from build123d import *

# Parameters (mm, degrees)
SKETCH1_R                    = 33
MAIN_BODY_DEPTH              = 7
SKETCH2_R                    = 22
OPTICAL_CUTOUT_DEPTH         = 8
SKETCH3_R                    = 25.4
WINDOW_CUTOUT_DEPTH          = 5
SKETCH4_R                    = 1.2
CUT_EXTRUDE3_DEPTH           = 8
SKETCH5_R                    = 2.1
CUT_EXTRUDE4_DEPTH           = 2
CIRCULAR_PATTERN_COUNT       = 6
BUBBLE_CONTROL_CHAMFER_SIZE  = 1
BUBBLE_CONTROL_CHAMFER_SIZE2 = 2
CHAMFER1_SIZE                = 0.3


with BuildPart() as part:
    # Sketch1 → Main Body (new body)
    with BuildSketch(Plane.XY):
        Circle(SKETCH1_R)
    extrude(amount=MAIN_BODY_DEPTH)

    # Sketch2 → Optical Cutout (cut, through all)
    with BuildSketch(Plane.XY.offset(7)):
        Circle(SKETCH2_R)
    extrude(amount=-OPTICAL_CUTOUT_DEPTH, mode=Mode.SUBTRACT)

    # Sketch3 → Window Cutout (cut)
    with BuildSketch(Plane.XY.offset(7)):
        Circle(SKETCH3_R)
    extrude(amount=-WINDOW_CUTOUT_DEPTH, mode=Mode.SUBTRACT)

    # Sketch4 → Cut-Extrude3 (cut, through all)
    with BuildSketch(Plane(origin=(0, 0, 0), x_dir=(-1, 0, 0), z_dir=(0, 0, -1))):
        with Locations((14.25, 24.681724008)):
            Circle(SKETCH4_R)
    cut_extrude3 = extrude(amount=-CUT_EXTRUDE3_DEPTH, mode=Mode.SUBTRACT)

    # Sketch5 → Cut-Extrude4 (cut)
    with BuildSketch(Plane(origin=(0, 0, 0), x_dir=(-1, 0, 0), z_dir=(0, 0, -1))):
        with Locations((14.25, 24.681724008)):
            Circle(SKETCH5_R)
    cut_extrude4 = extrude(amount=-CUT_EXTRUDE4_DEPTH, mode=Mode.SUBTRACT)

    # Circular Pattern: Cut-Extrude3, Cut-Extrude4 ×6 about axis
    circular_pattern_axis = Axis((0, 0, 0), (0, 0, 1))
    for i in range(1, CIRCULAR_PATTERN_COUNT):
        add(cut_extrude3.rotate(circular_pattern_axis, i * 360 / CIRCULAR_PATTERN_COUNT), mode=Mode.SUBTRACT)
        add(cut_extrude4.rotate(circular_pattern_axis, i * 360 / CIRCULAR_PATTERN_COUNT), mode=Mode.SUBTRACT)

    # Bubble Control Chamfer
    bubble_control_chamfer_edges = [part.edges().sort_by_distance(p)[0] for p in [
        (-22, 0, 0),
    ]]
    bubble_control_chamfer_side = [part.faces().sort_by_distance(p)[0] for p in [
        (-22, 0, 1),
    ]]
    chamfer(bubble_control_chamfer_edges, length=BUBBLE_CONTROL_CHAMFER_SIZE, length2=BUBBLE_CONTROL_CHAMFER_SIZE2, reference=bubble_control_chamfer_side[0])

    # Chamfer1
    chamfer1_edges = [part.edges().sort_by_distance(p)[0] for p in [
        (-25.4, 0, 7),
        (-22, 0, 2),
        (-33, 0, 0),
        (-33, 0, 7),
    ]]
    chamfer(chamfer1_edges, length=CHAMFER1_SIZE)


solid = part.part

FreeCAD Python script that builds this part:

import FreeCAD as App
import Part
import Sketcher


def edges_at(feature, points):
    """Names of the edges that pass closest to the given points."""
    edges = feature.Shape.Edges
    near = lambda p: min(range(len(edges)), key=lambda i: edges[i].distToShape(Part.Vertex(*p))[0])
    return sorted({f"Edge{near(p) + 1}" for p in points})

doc = App.newDocument("Part")
params = doc.addObject("Spreadsheet::Sheet", "Params")
for row, (alias, value) in enumerate([
    ("sketch1_diameter", "66 mm"),
    ("pad1_length", "7 mm"),
    ("sketch2_diameter", "44 mm"),
    ("sketch3_diameter", "50.8 mm"),
    ("pocket2_length", "5 mm"),
    ("sketch4_diameter", "2.4 mm"),
    ("sketch5_diameter", "4.2 mm"),
    ("pocket4_length", "2 mm"),
    ("chamfer_size", "1 mm"),
    ("chamfer_size2", "2 mm"),
    ("chamfer2_size", "0.3 mm"),
], start=1):
    params.set(f"A{row}", alias)
    params.set(f"B{row}", "=" + value)
    params.setAlias(f"B{row}", alias)

body = doc.addObject("PartDesign::Body", "Body")

# Sketch on XY plane
sketch1 = doc.addObject("Sketcher::SketchObject", "Sketch")
body.addObject(sketch1)
sketch1.AttachmentSupport = (doc.XY_Plane, [""])
sketch1.MapMode = "FlatFace"
sketch1.addGeometry(Part.Circle(App.Vector(0, 0, 0), App.Vector(0, 0, 1), 33), False)
sketch1.addConstraint(Sketcher.Constraint("Coincident", 0, 3, -1, 1))
sketch1.addConstraint(Sketcher.Constraint("Diameter", 0, 66.0))
sketch1.setExpression("Constraints[1]", "Params.sketch1_diameter")
pad1 = doc.addObject("PartDesign::Pad", "Pad")
body.addObject(pad1)
pad1.Profile = sketch1
pad1.setExpression("Length", "Params.pad1_length")

# Sketch on XY plane
sketch2 = doc.addObject("Sketcher::SketchObject", "Sketch001")
body.addObject(sketch2)
sketch2.AttachmentSupport = (doc.XY_Plane, [""])
sketch2.MapMode = "FlatFace"
sketch2.AttachmentOffset = App.Placement(App.Vector(0, 0, 7), App.Rotation())
sketch2.addGeometry(Part.Circle(App.Vector(0, 0, 0), App.Vector(0, 0, 1), 22), False)
sketch2.addConstraint(Sketcher.Constraint("Coincident", 0, 3, -1, 1))
sketch2.addConstraint(Sketcher.Constraint("Diameter", 0, 44.0))
sketch2.setExpression("Constraints[1]", "Params.sketch2_diameter")
pocket1 = doc.addObject("PartDesign::Pocket", "Pocket")
body.addObject(pocket1)
pocket1.Profile = sketch2
pocket1.Type = "ThroughAll"

# Sketch on XY plane
sketch3 = doc.addObject("Sketcher::SketchObject", "Sketch002")
body.addObject(sketch3)
sketch3.AttachmentSupport = (doc.XY_Plane, [""])
sketch3.MapMode = "FlatFace"
sketch3.AttachmentOffset = App.Placement(App.Vector(0, 0, 7), App.Rotation())
sketch3.addGeometry(Part.Circle(App.Vector(0, 0, 0), App.Vector(0, 0, 1), 25), False)
sketch3.addConstraint(Sketcher.Constraint("Coincident", 0, 3, -1, 1))
sketch3.addConstraint(Sketcher.Constraint("Diameter", 0, 50.8))
sketch3.setExpression("Constraints[1]", "Params.sketch3_diameter")
pocket2 = doc.addObject("PartDesign::Pocket", "Pocket001")
body.addObject(pocket2)
pocket2.Profile = sketch3
pocket2.setExpression("Length", "Params.pocket2_length")

# Sketch on XY plane
sketch4 = doc.addObject("Sketcher::SketchObject", "Sketch003")
body.addObject(sketch4)
sketch4.AttachmentSupport = (doc.XY_Plane, [""])
sketch4.MapMode = "FlatFace"
sketch4.addGeometry(Part.Circle(App.Vector(-14.2, 24.7, 0), App.Vector(0, 0, 1), 1.2), False)
sketch4.addConstraint(Sketcher.Constraint("Diameter", 0, 2.4))
sketch4.addConstraint(Sketcher.Constraint("DistanceX", 0, 3, -1, 1, 14.25))
sketch4.addConstraint(Sketcher.Constraint("DistanceY", -1, 1, 0, 3, 24.681724))
sketch4.setExpression("Constraints[0]", "Params.sketch4_diameter")
pocket3 = doc.addObject("PartDesign::Pocket", "Pocket002")
body.addObject(pocket3)
pocket3.Profile = sketch4
pocket3.Type = "ThroughAll"
pocket3.Reversed = True

# Sketch on XY plane
sketch5 = doc.addObject("Sketcher::SketchObject", "Sketch004")
body.addObject(sketch5)
sketch5.AttachmentSupport = (doc.XY_Plane, [""])
sketch5.MapMode = "FlatFace"
sketch5.addGeometry(Part.Circle(App.Vector(-14.2, 24.7, 0), App.Vector(0, 0, 1), 2.1), False)
sketch5.addConstraint(Sketcher.Constraint("Diameter", 0, 4.2))
sketch5.addConstraint(Sketcher.Constraint("DistanceX", 0, 3, -1, 1, 14.25))
sketch5.addConstraint(Sketcher.Constraint("DistanceY", -1, 1, 0, 3, 24.681724))
sketch5.setExpression("Constraints[0]", "Params.sketch5_diameter")
pocket4 = doc.addObject("PartDesign::Pocket", "Pocket003")
body.addObject(pocket4)
pocket4.Profile = sketch5
pocket4.setExpression("Length", "Params.pocket4_length")
pocket4.Reversed = True
doc.recompute()

polarpattern = doc.addObject("PartDesign::PolarPattern", "PolarPattern")
body.addObject(polarpattern)
polarpattern.Originals = [pocket3, pocket4]
polarpattern.Axis = (doc.Z_Axis, [""])
polarpattern.Angle = 360
polarpattern.Occurrences = 6
body.Tip = polarpattern
doc.recompute()

chamfer = doc.addObject("PartDesign::Chamfer", "Chamfer")
body.addObject(chamfer)
chamfer.Base = (polarpattern, edges_at(polarpattern, [(-22, 0, 0)]))
chamfer.ChamferType = "Two distances"
chamfer.setExpression("Size", "Params.chamfer_size")
chamfer.setExpression("Size2", "Params.chamfer_size2")
chamfer.FlipDirection = True
doc.recompute()

chamfer2 = doc.addObject("PartDesign::Chamfer", "Chamfer001")
body.addObject(chamfer2)
chamfer2.Base = (chamfer, edges_at(chamfer, [
    (-25.4, 0, 7),
    (-22, 0, 2),
    (-33, 0, 0),
    (-33, 0, 7),
]))
chamfer2.setExpression("Size", "Params.chamfer2_size")

doc.recompute()
